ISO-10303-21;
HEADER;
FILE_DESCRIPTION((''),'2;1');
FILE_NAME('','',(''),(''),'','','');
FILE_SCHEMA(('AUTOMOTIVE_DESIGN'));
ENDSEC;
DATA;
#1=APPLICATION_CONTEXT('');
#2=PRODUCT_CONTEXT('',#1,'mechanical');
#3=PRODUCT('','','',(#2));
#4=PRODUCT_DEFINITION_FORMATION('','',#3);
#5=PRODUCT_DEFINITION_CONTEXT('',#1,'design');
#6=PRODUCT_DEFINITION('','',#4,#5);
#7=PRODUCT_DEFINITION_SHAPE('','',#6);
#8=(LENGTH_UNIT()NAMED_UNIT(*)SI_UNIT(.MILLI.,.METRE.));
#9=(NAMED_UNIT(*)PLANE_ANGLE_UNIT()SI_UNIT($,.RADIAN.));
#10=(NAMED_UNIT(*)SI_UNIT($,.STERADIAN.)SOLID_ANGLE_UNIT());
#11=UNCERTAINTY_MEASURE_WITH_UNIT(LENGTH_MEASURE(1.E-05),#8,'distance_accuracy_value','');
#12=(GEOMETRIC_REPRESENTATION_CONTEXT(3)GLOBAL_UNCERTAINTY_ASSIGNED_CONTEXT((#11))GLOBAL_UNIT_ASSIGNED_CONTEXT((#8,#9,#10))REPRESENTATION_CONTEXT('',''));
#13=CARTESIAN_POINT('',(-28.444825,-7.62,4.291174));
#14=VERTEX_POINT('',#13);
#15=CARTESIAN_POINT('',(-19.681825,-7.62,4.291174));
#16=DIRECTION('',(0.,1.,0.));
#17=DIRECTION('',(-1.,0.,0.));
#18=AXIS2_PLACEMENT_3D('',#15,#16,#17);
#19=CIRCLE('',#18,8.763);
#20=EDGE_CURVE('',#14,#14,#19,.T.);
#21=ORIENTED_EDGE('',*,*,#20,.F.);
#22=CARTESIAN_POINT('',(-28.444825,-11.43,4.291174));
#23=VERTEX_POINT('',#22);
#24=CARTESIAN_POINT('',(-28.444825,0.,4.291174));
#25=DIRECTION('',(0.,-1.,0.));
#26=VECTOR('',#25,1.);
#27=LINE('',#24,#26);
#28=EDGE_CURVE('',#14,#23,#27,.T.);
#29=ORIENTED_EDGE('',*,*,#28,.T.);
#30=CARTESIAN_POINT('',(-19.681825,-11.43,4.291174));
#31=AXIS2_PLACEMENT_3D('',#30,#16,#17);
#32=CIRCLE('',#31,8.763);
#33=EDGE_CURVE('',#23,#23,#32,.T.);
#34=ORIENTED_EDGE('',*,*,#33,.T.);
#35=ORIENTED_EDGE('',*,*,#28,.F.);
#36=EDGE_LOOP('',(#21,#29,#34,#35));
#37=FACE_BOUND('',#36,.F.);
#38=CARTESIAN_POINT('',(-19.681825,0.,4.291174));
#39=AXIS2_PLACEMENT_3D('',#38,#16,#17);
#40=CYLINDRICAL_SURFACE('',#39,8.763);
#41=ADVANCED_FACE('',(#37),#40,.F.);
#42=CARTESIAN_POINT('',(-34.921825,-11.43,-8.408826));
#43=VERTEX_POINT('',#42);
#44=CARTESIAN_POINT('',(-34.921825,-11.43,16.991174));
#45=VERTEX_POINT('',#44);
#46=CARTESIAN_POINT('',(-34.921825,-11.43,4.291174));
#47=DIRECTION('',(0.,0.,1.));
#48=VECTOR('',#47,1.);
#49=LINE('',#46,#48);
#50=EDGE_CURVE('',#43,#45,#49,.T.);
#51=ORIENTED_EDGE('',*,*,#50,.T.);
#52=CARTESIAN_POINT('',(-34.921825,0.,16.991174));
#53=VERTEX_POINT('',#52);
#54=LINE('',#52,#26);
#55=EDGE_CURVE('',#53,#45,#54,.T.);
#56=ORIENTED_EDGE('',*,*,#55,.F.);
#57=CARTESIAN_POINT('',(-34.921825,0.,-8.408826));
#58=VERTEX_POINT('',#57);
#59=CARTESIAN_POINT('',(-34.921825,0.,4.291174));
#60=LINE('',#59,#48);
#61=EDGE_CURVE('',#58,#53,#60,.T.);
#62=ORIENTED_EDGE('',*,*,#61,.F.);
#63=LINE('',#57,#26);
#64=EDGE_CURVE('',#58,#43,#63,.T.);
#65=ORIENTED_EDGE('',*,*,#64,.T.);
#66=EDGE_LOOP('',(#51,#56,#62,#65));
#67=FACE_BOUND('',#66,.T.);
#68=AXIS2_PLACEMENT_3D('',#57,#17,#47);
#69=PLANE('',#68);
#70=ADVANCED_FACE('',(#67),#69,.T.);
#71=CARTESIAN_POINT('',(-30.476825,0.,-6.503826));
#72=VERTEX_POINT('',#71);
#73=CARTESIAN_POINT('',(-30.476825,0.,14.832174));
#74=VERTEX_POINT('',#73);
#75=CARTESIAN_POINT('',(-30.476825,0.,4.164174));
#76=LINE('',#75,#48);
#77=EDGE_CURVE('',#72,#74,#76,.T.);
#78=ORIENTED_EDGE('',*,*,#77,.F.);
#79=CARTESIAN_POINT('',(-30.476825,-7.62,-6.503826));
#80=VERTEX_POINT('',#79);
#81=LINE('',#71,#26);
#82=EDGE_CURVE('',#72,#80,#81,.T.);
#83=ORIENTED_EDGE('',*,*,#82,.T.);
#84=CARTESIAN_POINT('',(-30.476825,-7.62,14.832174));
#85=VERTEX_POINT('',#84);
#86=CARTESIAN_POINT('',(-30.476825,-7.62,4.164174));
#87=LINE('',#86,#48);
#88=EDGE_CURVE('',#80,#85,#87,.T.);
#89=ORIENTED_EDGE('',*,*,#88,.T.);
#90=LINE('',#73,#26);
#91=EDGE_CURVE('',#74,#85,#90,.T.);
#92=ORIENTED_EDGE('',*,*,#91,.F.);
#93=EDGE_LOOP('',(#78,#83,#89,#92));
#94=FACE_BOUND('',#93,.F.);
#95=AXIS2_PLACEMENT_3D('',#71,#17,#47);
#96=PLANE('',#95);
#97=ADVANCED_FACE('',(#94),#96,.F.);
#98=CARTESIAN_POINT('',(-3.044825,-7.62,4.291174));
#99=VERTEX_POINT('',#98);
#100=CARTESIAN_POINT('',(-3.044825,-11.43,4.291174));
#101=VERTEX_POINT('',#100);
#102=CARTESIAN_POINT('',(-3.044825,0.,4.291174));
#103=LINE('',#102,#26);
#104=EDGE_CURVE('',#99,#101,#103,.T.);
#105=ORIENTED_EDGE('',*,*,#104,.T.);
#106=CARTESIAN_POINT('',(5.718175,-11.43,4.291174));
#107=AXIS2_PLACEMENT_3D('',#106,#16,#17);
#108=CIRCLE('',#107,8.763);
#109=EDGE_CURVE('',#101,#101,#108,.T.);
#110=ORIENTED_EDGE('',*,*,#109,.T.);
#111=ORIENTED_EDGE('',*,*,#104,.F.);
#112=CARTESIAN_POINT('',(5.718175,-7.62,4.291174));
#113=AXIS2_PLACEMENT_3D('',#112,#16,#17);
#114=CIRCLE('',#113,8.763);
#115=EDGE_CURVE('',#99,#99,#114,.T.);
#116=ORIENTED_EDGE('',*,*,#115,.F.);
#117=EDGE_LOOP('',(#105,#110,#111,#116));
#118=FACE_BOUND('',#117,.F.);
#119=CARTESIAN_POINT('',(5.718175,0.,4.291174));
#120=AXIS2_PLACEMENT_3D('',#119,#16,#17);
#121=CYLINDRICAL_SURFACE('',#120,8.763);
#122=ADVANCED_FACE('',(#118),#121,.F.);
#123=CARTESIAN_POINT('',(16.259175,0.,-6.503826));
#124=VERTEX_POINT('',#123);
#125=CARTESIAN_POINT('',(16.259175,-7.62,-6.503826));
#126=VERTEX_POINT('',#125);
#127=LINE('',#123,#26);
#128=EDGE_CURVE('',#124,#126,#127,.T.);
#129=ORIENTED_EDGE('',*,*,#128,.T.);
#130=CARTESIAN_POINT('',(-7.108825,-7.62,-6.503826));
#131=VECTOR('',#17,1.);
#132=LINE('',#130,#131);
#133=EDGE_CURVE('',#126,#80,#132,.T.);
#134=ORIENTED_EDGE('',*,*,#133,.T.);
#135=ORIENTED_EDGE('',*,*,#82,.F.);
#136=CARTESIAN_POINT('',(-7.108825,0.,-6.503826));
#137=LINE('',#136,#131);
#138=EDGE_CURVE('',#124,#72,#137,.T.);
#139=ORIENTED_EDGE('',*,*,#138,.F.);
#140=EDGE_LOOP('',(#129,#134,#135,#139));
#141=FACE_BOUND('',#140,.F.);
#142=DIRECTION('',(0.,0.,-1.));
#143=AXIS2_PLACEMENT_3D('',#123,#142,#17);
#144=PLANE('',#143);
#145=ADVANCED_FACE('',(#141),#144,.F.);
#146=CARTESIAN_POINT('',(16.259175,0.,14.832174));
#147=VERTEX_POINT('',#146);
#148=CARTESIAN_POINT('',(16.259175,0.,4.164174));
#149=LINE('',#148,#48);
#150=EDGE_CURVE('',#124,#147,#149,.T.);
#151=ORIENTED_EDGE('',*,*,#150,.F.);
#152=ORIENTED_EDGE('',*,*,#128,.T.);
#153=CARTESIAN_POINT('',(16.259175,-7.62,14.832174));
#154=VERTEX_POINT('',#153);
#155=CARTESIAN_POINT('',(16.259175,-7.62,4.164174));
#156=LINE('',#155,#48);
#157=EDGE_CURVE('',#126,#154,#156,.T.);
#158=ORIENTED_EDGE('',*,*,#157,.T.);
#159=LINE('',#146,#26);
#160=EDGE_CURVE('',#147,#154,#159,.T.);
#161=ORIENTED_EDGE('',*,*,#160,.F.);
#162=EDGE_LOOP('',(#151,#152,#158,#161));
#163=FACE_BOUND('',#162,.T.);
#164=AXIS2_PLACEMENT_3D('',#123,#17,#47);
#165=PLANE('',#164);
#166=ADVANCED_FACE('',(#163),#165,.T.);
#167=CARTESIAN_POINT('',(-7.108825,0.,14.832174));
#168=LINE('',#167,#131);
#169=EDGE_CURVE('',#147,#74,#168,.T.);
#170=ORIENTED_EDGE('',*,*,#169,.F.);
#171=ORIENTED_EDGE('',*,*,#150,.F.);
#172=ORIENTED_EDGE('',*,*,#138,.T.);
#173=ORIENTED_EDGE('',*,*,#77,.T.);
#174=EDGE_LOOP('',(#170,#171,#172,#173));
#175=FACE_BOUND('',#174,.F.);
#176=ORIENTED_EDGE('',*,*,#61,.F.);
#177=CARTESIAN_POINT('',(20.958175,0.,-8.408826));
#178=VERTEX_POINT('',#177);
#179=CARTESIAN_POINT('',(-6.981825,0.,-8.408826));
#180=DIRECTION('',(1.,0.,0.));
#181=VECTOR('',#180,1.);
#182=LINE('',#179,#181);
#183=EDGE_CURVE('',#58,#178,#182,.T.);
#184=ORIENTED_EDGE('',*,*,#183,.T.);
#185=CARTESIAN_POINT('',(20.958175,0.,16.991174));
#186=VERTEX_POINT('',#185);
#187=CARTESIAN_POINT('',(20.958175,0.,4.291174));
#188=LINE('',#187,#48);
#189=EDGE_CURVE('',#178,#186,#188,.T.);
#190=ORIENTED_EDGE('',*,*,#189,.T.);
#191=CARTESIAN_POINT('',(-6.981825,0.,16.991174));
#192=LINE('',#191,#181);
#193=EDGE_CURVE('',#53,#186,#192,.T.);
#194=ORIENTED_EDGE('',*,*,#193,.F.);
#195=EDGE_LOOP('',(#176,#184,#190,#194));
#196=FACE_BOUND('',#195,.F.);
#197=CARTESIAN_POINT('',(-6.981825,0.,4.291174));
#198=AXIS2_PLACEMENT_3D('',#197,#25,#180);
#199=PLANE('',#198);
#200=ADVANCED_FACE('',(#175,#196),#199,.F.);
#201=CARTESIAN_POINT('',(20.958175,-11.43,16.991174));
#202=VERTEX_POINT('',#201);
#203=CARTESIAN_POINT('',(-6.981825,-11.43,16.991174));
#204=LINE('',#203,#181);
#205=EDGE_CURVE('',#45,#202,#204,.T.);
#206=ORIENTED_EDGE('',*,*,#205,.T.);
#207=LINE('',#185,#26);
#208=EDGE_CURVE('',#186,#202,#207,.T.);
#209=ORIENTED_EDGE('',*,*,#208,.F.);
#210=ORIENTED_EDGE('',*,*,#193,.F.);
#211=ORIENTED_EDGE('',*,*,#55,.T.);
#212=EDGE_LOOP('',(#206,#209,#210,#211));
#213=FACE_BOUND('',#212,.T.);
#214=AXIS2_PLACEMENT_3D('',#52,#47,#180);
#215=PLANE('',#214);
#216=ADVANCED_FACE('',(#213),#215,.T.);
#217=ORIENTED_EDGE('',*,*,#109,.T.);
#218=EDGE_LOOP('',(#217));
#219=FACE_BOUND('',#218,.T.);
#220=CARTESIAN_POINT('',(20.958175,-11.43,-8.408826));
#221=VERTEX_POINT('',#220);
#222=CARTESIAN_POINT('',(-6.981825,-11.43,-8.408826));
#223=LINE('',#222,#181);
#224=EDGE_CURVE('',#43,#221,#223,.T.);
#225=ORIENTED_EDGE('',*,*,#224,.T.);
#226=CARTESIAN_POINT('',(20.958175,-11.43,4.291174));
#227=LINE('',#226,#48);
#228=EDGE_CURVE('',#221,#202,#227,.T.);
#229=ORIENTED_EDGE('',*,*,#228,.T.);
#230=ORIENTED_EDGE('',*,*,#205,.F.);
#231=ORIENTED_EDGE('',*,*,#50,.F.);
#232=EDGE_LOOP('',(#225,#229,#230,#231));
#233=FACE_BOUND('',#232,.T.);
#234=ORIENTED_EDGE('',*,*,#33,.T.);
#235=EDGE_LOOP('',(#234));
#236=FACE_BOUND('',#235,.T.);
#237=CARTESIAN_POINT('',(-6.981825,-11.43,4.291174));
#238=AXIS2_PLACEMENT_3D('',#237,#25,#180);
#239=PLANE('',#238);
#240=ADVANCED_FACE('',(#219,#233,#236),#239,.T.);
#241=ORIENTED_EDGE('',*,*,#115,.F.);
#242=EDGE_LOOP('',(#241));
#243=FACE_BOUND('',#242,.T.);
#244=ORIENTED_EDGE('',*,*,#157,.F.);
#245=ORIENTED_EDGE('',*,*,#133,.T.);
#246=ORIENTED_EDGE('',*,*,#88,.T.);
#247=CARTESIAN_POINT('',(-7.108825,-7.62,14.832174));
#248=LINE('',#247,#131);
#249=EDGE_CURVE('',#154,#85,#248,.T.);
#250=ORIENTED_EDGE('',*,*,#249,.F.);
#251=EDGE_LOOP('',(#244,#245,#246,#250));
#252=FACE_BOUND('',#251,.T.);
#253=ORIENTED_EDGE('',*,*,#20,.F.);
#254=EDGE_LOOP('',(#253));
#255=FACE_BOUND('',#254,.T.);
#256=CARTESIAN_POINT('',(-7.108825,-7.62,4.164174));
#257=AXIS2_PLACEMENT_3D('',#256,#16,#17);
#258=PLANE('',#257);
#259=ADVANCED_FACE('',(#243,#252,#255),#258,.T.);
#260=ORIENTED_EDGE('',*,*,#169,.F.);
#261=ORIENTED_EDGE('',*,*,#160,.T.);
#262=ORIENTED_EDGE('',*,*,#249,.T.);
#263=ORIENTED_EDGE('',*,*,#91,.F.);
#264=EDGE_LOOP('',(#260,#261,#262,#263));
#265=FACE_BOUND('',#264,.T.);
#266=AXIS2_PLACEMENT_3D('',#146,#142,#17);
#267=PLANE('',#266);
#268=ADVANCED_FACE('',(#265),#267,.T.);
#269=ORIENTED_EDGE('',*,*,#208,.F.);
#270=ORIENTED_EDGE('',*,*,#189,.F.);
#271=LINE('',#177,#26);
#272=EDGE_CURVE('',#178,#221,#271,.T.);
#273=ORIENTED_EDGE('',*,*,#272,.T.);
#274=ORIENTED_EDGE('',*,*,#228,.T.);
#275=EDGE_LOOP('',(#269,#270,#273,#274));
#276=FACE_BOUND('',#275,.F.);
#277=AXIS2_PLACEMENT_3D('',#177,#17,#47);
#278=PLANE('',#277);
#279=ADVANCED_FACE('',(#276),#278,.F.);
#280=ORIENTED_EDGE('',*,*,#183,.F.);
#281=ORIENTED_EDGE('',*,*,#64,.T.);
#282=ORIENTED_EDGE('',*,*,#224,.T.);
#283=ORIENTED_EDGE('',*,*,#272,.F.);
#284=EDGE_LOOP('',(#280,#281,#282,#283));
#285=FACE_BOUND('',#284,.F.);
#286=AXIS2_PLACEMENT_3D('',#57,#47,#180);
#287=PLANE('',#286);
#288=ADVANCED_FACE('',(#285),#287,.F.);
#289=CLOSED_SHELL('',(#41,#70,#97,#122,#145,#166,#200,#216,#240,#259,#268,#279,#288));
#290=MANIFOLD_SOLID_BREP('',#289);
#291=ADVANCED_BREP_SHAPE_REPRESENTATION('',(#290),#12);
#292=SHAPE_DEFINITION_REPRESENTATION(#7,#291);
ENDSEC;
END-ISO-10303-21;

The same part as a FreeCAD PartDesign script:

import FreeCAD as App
import Part
import Sketcher
Q = App.Units.Quantity

doc = App.newDocument("Part")
body = doc.addObject("PartDesign::Body", "Body")

# Sketch on XZ plane
sketch1 = body.newObject("Sketcher::SketchObject", "Sketch")
sketch1.AttachmentSupport = (doc.getObject("XZ_Plane"), [""])
sketch1.MapMode = "FlatFace"
sketch1.addGeometry(Part.LineSegment(App.Vector(-35, 17, 0), App.Vector(-35, -8, 0)), False)
sketch1.addGeometry(Part.LineSegment(App.Vector(-35, -8, 0), App.Vector(21, -8, 0)), False)
sketch1.addGeometry(Part.LineSegment(App.Vector(21, -8, 0), App.Vector(21, 17, 0)), False)
sketch1.addGeometry(Part.LineSegment(App.Vector(21, 17, 0), App.Vector(-35, 17, 0)), False)
sketch1.addConstraint(Sketcher.Constraint("Coincident", 0, 2, 1, 1))
sketch1.addConstraint(Sketcher.Constraint("Coincident", 1, 2, 2, 1))
sketch1.addConstraint(Sketcher.Constraint("Coincident", 2, 2, 3, 1))
sketch1.addConstraint(Sketcher.Constraint("Coincident", 3, 2, 0, 1))
sketch1.addConstraint(Sketcher.Constraint("Vertical", 0))
sketch1.addConstraint(Sketcher.Constraint("Horizontal", 1))
sketch1.addConstraint(Sketcher.Constraint("Vertical", 2))
sketch1.addConstraint(Sketcher.Constraint("Horizontal", 3))
sketch1.addConstraint(Sketcher.Constraint("DistanceY", 0, 2, 0, 1, Q("1 in")))
sketch1.addConstraint(Sketcher.Constraint("DistanceX", 1, 1, 1, 2, Q("2.2 in")))
sketch1.addConstraint(Sketcher.Constraint("DistanceX", 0, 2, -1, 1, Q("34.921825 mm")))
sketch1.addConstraint(Sketcher.Constraint("DistanceY", 0, 2, -1, 1, Q("8.408826 mm")))
pad1 = body.newObject("PartDesign::Pad", "Pad")
pad1.Profile = sketch1
pad1.Length = Q("0.45 in")

# Sketch on XZ plane
sketch2 = body.newObject("Sketcher::SketchObject", "Sketch001")
sketch2.AttachmentSupport = (doc.getObject("XZ_Plane"), [""])
sketch2.MapMode = "FlatFace"
sketch2.addGeometry(Part.Circle(App.Vector(-20, 4, 0), App.Vector(0, 0, 1), 9), False)
sketch2.addGeometry(Part.Circle(App.Vector(6, 4, 0), App.Vector(0, 0, 1), 9), False)
sketch2.addConstraint(Sketcher.Constraint("Equal", 0, 1))
sketch2.addConstraint(Sketcher.Constraint("Horizontal", 0, 3, 1, 3))
sketch2.addConstraint(Sketcher.Constraint("Diameter", 0, Q("0.69 in")))
sketch2.addConstraint(Sketcher.Constraint("DistanceX", 0, 3, 1, 3, Q("1 in")))
sketch2.addConstraint(Sketcher.Constraint("DistanceX", 0, 3, -1, 1, Q("19.681825 mm")))
sketch2.addConstraint(Sketcher.Constraint("DistanceY", -1, 1, 0, 3, Q("4.291174 mm")))
pocket1 = body.newObject("PartDesign::Pocket", "Pocket")
pocket1.Profile = sketch2
pocket1.Length = Q("1 in")
pocket1.Reversed = True

# Sketch on XZ plane
sketch3 = body.newObject("Sketcher::SketchObject", "Sketch002")
sketch3.AttachmentSupport = (doc.getObject("XZ_Plane"), [""])
sketch3.MapMode = "FlatFace"
sketch3.addGeometry(Part.LineSegment(App.Vector(16, 15, 0), App.Vector(16, -7, 0)), False)
sketch3.addGeometry(Part.LineSegment(App.Vector(16, -7, 0), App.Vector(-30, -7, 0)), False)
sketch3.addGeometry(Part.LineSegment(App.Vector(-30, -7, 0), App.Vector(-30, 15, 0)), False)
sketch3.addGeometry(Part.LineSegment(App.Vector(-30, 15, 0), App.Vector(16, 15, 0)), False)
sketch3.addGeometry(Part.Circle(App.Vector(-20, 4, 0), App.Vector(0, 0, 1), 9), False)
sketch3.addGeometry(Part.Circle(App.Vector(6, 4, 0), App.Vector(0, 0, 1), 9), False)
sketch3.addConstraint(Sketcher.Constraint("Coincident", 0, 2, 1, 1))
sketch3.addConstraint(Sketcher.Constraint("Coincident", 1, 2, 2, 1))
sketch3.addConstraint(Sketcher.Constraint("Coincident", 2, 2, 3, 1))
sketch3.addConstraint(Sketcher.Constraint("Coincident", 3, 2, 0, 1))
sketch3.addConstraint(Sketcher.Constraint("Vertical", 0))
sketch3.addConstraint(Sketcher.Constraint("Horizontal", 1))
sketch3.addConstraint(Sketcher.Constraint("Vertical", 2))
sketch3.addConstraint(Sketcher.Constraint("Horizontal", 3))
sketch3.addConstraint(Sketcher.Constraint("Equal", 4, 5))
sketch3.addConstraint(Sketcher.Constraint("Horizontal", 4, 3, 5, 3))
sketch3.addConstraint(Sketcher.Constraint("Diameter", 4, Q("0.69 in")))
sketch3.addConstraint(Sketcher.Constraint("DistanceX", 4, 3, 5, 3, Q("1 in")))
sketch3.addConstraint(Sketcher.Constraint("DistanceX", 1, 2, 1, 1, Q("1.84 in")))
sketch3.addConstraint(Sketcher.Constraint("DistanceY", 0, 2, 0, 1, Q("0.84 in")))
sketch3.addConstraint(Sketcher.Constraint("DistanceX", 5, 3, 0, 2, Q("0.415 in")))
sketch3.addConstraint(Sketcher.Constraint("DistanceY", 0, 2, 5, 3, Q("0.425 in")))
sketch3.addConstraint(Sketcher.Constraint("DistanceX", 4, 3, -1, 1, Q("19.681825 mm")))
sketch3.addConstraint(Sketcher.Constraint("DistanceY", -1, 1, 4, 3, Q("4.291174 mm")))
pocket2 = body.newObject("PartDesign::Pocket", "Pocket001")
pocket2.Profile = sketch3
pocket2.Length = Q("0.3 in")
pocket2.Reversed = True

doc.recompute()
